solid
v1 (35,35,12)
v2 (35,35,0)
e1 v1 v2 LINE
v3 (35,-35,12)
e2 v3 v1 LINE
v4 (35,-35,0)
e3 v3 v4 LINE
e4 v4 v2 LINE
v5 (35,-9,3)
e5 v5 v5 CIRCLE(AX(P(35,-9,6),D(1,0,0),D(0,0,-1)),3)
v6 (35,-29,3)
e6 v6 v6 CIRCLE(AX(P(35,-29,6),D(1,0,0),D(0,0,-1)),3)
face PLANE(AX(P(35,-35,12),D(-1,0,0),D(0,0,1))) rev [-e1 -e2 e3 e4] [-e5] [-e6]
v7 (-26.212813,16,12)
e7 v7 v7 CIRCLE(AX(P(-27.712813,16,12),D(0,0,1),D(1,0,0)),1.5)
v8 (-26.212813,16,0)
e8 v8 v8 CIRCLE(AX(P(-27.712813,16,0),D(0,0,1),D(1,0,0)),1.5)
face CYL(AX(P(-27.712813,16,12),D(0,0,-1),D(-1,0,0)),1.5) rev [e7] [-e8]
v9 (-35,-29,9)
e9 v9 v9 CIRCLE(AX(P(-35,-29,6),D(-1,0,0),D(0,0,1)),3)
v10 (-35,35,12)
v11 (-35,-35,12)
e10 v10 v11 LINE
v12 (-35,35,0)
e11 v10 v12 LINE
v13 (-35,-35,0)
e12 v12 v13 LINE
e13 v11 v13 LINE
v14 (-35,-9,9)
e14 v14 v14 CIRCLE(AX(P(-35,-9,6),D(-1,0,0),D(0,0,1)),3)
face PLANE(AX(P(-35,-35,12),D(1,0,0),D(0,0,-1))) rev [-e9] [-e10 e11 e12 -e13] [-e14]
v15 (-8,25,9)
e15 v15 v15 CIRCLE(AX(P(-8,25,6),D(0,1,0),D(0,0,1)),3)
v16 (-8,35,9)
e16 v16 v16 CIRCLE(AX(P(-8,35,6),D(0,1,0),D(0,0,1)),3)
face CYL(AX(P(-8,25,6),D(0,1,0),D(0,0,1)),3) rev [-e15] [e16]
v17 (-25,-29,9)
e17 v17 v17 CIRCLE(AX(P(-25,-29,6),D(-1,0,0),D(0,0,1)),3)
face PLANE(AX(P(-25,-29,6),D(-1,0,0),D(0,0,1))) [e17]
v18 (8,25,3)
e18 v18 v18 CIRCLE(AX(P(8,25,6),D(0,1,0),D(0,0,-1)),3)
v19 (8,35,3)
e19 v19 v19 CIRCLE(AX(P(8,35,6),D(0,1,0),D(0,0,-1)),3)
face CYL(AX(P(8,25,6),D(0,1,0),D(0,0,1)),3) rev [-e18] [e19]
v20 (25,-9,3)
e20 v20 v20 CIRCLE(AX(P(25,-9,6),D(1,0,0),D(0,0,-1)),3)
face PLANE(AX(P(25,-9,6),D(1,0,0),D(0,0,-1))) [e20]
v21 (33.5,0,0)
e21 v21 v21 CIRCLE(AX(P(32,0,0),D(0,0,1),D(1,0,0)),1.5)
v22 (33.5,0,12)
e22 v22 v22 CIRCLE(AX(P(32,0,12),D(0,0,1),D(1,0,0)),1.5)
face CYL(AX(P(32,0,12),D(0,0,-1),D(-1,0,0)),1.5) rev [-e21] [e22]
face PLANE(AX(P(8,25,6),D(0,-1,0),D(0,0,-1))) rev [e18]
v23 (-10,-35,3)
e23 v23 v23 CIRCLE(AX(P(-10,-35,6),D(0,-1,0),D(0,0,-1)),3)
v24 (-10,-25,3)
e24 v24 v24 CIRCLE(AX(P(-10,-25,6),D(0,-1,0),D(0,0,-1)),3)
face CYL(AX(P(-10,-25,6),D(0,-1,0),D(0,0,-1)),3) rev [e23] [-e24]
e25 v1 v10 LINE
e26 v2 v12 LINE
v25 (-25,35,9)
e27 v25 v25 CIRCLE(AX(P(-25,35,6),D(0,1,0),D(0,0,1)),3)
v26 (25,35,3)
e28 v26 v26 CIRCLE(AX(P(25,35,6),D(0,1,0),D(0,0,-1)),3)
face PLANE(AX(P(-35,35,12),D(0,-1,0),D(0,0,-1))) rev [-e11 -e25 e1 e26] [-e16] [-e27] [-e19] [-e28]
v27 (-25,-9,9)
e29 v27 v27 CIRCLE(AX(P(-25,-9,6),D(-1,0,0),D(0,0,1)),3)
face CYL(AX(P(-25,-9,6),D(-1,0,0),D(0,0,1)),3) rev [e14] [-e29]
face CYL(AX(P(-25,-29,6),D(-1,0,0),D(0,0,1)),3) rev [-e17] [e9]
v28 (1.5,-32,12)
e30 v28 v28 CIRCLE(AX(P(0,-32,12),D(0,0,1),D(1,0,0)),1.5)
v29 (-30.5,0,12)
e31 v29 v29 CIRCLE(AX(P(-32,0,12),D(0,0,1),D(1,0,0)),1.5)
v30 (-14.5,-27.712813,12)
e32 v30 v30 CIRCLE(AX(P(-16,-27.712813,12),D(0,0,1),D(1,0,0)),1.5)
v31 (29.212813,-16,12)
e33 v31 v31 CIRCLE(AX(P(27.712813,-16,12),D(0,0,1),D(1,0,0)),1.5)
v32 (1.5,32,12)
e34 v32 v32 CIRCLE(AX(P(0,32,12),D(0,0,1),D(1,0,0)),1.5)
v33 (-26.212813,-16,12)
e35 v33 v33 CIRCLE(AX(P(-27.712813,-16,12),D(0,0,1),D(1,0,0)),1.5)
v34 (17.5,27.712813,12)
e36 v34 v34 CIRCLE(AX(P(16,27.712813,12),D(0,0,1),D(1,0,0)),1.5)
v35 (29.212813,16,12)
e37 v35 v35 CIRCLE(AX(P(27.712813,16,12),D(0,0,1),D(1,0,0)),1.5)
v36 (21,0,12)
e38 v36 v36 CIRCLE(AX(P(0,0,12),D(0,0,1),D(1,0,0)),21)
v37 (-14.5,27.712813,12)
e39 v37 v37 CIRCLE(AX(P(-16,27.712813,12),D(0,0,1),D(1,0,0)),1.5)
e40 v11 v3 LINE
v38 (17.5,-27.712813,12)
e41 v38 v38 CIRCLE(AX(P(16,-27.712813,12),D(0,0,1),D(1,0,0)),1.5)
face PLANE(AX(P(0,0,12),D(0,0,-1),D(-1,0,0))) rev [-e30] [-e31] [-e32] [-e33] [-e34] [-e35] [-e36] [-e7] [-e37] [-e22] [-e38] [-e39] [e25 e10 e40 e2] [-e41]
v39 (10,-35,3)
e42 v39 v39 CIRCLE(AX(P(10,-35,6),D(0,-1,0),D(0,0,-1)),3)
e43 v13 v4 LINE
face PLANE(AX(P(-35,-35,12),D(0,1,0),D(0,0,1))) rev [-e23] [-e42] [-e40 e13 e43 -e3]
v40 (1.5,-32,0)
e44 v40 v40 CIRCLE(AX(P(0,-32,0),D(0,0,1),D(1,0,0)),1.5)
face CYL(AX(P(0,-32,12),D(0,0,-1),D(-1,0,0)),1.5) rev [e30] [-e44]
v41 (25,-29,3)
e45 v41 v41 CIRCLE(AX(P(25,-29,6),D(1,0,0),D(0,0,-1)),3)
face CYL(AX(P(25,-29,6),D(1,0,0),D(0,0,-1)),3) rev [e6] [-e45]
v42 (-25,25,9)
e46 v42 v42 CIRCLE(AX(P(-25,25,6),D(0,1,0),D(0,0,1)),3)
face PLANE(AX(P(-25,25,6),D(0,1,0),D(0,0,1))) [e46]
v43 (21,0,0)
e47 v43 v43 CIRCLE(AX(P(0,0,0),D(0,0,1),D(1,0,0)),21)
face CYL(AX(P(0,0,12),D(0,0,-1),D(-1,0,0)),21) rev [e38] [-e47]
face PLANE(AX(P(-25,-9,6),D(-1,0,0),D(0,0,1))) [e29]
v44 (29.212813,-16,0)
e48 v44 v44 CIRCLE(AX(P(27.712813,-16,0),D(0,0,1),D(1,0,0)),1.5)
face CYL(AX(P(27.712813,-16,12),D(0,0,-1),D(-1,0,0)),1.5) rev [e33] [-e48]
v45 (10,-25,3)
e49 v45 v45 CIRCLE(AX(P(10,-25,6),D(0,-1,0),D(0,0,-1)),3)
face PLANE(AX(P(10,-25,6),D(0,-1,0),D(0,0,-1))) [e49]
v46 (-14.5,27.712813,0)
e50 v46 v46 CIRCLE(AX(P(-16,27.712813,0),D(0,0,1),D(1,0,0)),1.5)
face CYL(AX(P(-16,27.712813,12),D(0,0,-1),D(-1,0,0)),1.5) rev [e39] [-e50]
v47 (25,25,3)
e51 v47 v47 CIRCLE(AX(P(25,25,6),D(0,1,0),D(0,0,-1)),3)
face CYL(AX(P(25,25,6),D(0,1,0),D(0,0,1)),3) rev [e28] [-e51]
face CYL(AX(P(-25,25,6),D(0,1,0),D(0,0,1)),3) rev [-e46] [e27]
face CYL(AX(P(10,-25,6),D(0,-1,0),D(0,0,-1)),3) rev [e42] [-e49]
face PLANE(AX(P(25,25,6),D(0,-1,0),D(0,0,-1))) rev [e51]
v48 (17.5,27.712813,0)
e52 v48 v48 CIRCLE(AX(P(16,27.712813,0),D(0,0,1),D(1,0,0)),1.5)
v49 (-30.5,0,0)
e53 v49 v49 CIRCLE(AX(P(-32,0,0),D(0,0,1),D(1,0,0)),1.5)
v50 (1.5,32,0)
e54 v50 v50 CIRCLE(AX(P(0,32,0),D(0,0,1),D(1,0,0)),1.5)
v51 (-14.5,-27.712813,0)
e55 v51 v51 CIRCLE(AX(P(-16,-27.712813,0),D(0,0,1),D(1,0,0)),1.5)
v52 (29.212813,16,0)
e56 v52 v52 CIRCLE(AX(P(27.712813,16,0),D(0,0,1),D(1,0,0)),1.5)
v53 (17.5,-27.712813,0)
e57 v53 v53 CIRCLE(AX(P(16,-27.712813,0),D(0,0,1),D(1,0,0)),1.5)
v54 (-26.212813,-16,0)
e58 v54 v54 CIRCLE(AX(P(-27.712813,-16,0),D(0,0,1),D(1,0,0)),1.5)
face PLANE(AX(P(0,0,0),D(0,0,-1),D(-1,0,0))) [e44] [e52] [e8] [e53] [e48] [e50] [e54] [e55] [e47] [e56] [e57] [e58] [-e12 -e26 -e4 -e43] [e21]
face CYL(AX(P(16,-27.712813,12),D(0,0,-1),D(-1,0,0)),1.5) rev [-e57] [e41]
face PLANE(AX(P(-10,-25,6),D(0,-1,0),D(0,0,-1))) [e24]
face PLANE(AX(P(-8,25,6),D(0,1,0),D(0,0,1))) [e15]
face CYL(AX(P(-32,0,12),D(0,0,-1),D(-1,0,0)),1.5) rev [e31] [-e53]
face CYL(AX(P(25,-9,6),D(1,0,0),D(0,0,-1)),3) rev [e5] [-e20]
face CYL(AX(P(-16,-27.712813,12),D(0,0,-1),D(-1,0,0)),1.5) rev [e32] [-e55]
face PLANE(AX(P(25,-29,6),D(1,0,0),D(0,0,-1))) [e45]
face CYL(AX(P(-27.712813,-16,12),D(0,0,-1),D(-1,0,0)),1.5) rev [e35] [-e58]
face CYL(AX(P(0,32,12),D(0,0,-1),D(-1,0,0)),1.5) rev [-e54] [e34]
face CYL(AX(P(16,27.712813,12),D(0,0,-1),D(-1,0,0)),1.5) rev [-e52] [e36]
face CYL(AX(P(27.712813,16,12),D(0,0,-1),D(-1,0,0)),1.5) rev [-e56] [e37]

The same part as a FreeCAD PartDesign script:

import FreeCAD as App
import Part
import Sketcher

V = App.Vector
Q = App.Units.Quantity


def add_polygon(sketch, points):
    """Adds a closed chain of lines whose ends are joined by coincident constraints."""
    first, n = sketch.GeometryCount, len(points)
    for a, b in zip(points, points[1:] + points[:1]):
        sketch.addGeometry(Part.LineSegment(App.Vector(*a, 0), App.Vector(*b, 0)), False)
    for i in range(n):
        sketch.addConstraint(Sketcher.Constraint("Coincident", first + i, 2, first + (i + 1) % n, 1))

doc = App.newDocument("Part")
body = doc.addObject("PartDesign::Body", "Body")

sketch1 = doc.addObject("Sketcher::SketchObject", "Sketch")
body.addObject(sketch1)
sketch1.AttachmentSupport = (doc.XY_Plane, [""])
sketch1.MapMode = "FlatFace"
add_polygon(sketch1, [(-35, 35), (-35, -35), (35, -35), (35, 35)])
sketch1.addGeometry(Part.Circle(V(-16, -27.712813, 0), V(0, 0, 1), 1.5), False)
sketch1.addGeometry(Part.Circle(V(-27.712813, -16, 0), V(0, 0, 1), 1.5), False)
sketch1.addGeometry(Part.Circle(V(0, -32, 0), V(0, 0, 1), 1.5), False)
sketch1.addGeometry(Part.Circle(V(16, -27.712813, 0), V(0, 0, 1), 1.5), False)
sketch1.addGeometry(Part.Circle(V(27.712813, -16, 0), V(0, 0, 1), 1.5), False)
sketch1.addGeometry(Part.Circle(V(-32, 0, 0), V(0, 0, 1), 1.5), False)
sketch1.addGeometry(Part.Circle(V(-27.712813, 16, 0), V(0, 0, 1), 1.5), False)
sketch1.addGeometry(Part.Circle(V(-16, 27.712813, 0), V(0, 0, 1), 1.5), False)
sketch1.addGeometry(Part.Circle(V(0, 0, 0), V(0, 0, 1), 21), False)
sketch1.addGeometry(Part.Circle(V(32, 0, 0), V(0, 0, 1), 1.5), False)
sketch1.addGeometry(Part.Circle(V(27.712813, 16, 0), V(0, 0, 1), 1.5), False)
sketch1.addGeometry(Part.Circle(V(0, 32, 0), V(0, 0, 1), 1.5), False)
sketch1.addGeometry(Part.Circle(V(16, 27.712813, 0), V(0, 0, 1), 1.5), False)
sketch1.addConstraint(Sketcher.Constraint("Vertical", 0))
sketch1.addConstraint(Sketcher.Constraint("Horizontal", 1))
sketch1.addConstraint(Sketcher.Constraint("Vertical", 2))
sketch1.addConstraint(Sketcher.Constraint("Horizontal", 3))
sketch1.addConstraint(Sketcher.Constraint("Coincident", 12, 3, -1, 1))
sketch1.addConstraint(Sketcher.Constraint("Equal", 4, 5))
sketch1.addConstraint(Sketcher.Constraint("Equal", 5, 6))
sketch1.addConstraint(Sketcher.Constraint("Equal", 6, 7))
sketch1.addConstraint(Sketcher.Constraint("Equal", 7, 8))
sketch1.addConstraint(Sketcher.Constraint("Equal", 8, 9))
sketch1.addConstraint(Sketcher.Constraint("Equal", 9, 10))
sketch1.addConstraint(Sketcher.Constraint("Equal", 10, 11))
sketch1.addConstraint(Sketcher.Constraint("Equal", 11, 13))
sketch1.addConstraint(Sketcher.Constraint("Equal", 13, 14))
sketch1.addConstraint(Sketcher.Constraint("Equal", 14, 15))
sketch1.addConstraint(Sketcher.Constraint("Equal", 15, 16))
sketch1.addConstraint(Sketcher.Constraint("Symmetric", 8, 3, 10, 3, -1, 1))
sketch1.addConstraint(Sketcher.Constraint("Symmetric", 7, 3, 11, 3, -1, 1))
sketch1.addConstraint(Sketcher.Constraint("Symmetric", 9, 3, 13, 3, -1, 1))
sketch1.addConstraint(Sketcher.Constraint("Symmetric", 5, 3, 14, 3, -1, 1))
sketch1.addConstraint(Sketcher.Constraint("Symmetric", 6, 3, 15, 3, -1, 1))
sketch1.addConstraint(Sketcher.Constraint("Symmetric", 4, 3, 16, 3, -1, 1))
sketch1.addConstraint(Sketcher.Constraint("Symmetric", 0, 2, 2, 2, -1, 1))
sketch1.addConstraint(Sketcher.Constraint("Symmetric", 4, 3, 7, 3, -2))
sketch1.addConstraint(Sketcher.Constraint("Symmetric", 5, 3, 8, 3, -2))
sketch1.addConstraint(Sketcher.Constraint("PointOnObject", 6, 3, -2))
sketch1.addConstraint(Sketcher.Constraint("PointOnObject", 9, 3, -1))
sketch1.addConstraint(Sketcher.Constraint("Equal", 3, 0))
sketch1.addConstraint(Sketcher.Constraint("Diameter", 4, Q("3 mm")))
sketch1.addConstraint(Sketcher.Constraint("Diameter", 12, Q("42 mm")))
sketch1.addConstraint(Sketcher.Constraint("DistanceX", 1, 1, 1, 2, Q("70 mm")))
sketch1.addConstraint(Sketcher.Constraint("DistanceX", 4, 3, -1, 1, Q("16 mm")))
sketch1.addConstraint(Sketcher.Constraint("DistanceY", 5, 3, -1, 1, Q("16 mm")))
sketch1.addConstraint(Sketcher.Constraint("DistanceY", 6, 3, -1, 1, Q("32 mm")))
sketch1.addConstraint(Sketcher.Constraint("DistanceX", 9, 3, -1, 1, Q("32 mm")))
sketch1.addConstraint(Sketcher.Constraint("DistanceY", 4, 3, -1, 1, Q("27.712813 mm")))
sketch1.addConstraint(Sketcher.Constraint("DistanceX", 5, 3, -1, 1, Q("27.712813 mm")))
pad1 = doc.addObject("PartDesign::Pad", "Pad")
body.addObject(pad1)
pad1.Profile = sketch1
pad1.Length = 12

sketch2 = doc.addObject("Sketcher::SketchObject", "Sketch001")
body.addObject(sketch2)
sketch2.AttachmentSupport = (doc.XZ_Plane, [""])
sketch2.MapMode = "FlatFace"
sketch2.AttachmentOffset = App.Placement(V(0, 0, -35), App.Rotation())
sketch2.addGeometry(Part.Circle(V(-25, 6, 0), V(0, 0, 1), 3), False)
sketch2.addGeometry(Part.Circle(V(-8, 6, 0), V(0, 0, 1), 3), False)
sketch2.addGeometry(Part.Circle(V(25, 6, 0), V(0, 0, 1), 3), False)
sketch2.addGeometry(Part.Circle(V(8, 6, 0), V(0, 0, 1), 3), False)
sketch2.addConstraint(Sketcher.Constraint("Equal", 0, 1))
sketch2.addConstraint(Sketcher.Constraint("Equal", 1, 2))
sketch2.addConstraint(Sketcher.Constraint("Equal", 2, 3))
sketch2.addConstraint(Sketcher.Constraint("Symmetric", 0, 3, 2, 3, -2))
sketch2.addConstraint(Sketcher.Constraint("Symmetric", 1, 3, 3, 3, -2))
sketch2.addConstraint(Sketcher.Constraint("Horizontal", 0, 3, 1, 3))
sketch2.addConstraint(Sketcher.Constraint("Diameter", 0, Q("6 mm")))
sketch2.addConstraint(Sketcher.Constraint("DistanceX", 0, 3, -1, 1, Q("25 mm")))
sketch2.addConstraint(Sketcher.Constraint("DistanceY", -1, 1, 0, 3, Q("6 mm")))
sketch2.addConstraint(Sketcher.Constraint("DistanceX", 1, 3, -1, 1, Q("8 mm")))
pocket1 = doc.addObject("PartDesign::Pocket", "Pocket")
body.addObject(pocket1)
pocket1.Profile = sketch2
pocket1.Length = 10
pocket1.Reversed = True

sketch3 = doc.addObject("Sketcher::SketchObject", "Sketch002")
body.addObject(sketch3)
sketch3.AttachmentSupport = (doc.YZ_Plane, [""])
sketch3.MapMode = "FlatFace"
sketch3.AttachmentOffset = App.Placement(V(0, 0, 35), App.Rotation())
sketch3.addGeometry(Part.Circle(V(-9, 6, 0), V(0, 0, 1), 3), False)
sketch3.addGeometry(Part.Circle(V(-29, 6, 0), V(0, 0, 1), 3), False)
sketch3.addConstraint(Sketcher.Constraint("Equal", 0, 1))
sketch3.addConstraint(Sketcher.Constraint("Horizontal", 0, 3, 1, 3))
sketch3.addConstraint(Sketcher.Constraint("Diameter", 0, Q("6 mm")))
sketch3.addConstraint(Sketcher.Constraint("DistanceX", 0, 3, -1, 1, Q("9 mm")))
sketch3.addConstraint(Sketcher.Constraint("DistanceY", -1, 1, 0, 3, Q("6 mm")))
sketch3.addConstraint(Sketcher.Constraint("DistanceX", 1, 3, -1, 1, Q("29 mm")))
pocket2 = doc.addObject("PartDesign::Pocket", "Pocket001")
body.addObject(pocket2)
pocket2.Profile = sketch3
pocket2.Length = 10

sketch4 = doc.addObject("Sketcher::SketchObject", "Sketch003")
body.addObject(sketch4)
sketch4.AttachmentSupport = (doc.YZ_Plane, [""])
sketch4.MapMode = "FlatFace"
sketch4.AttachmentOffset = App.Placement(V(0, 0, -25), App.Rotation())
sketch4.addGeometry(Part.Circle(V(-29, 6, 0), V(0, 0, 1), 3), False)
sketch4.addGeometry(Part.Circle(V(-9, 6, 0), V(0, 0, 1), 3), False)
sketch4.addConstraint(Sketcher.Constraint("Equal", 0, 1))
sketch4.addConstraint(Sketcher.Constraint("Horizontal", 0, 3, 1, 3))
sketch4.addConstraint(Sketcher.Constraint("Diameter", 0, Q("6 mm")))
sketch4.addConstraint(Sketcher.Constraint("DistanceX", 0, 3, -1, 1, Q("29 mm")))
sketch4.addConstraint(Sketcher.Constraint("DistanceY", -1, 1, 0, 3, Q("6 mm")))
sketch4.addConstraint(Sketcher.Constraint("DistanceX", 1, 3, -1, 1, Q("9 mm")))
pocket3 = doc.addObject("PartDesign::Pocket", "Pocket002")
body.addObject(pocket3)
pocket3.Profile = sketch4
pocket3.Length = 10

sketch5 = doc.addObject("Sketcher::SketchObject", "Sketch004")
body.addObject(sketch5)
sketch5.AttachmentSupport = (doc.XZ_Plane, [""])
sketch5.MapMode = "FlatFace"
sketch5.AttachmentOffset = App.Placement(V(0, 0, 35), App.Rotation())
sketch5.addGeometry(Part.Circle(V(10, 6, 0), V(0, 0, 1), 3), False)
sketch5.addGeometry(Part.Circle(V(-10, 6, 0), V(0, 0, 1), 3), False)
sketch5.addConstraint(Sketcher.Constraint("Equal", 0, 1))
sketch5.addConstraint(Sketcher.Constraint("Symmetric", 0, 3, 1, 3, -2))
sketch5.addConstraint(Sketcher.Constraint("Diameter", 0, Q("6 mm")))
sketch5.addConstraint(Sketcher.Constraint("DistanceX", -1, 1, 0, 3, Q("10 mm")))
sketch5.addConstraint(Sketcher.Constraint("DistanceY", -1, 1, 0, 3, Q("6 mm")))
pocket4 = doc.addObject("PartDesign::Pocket", "Pocket003")
body.addObject(pocket4)
pocket4.Profile = sketch5
pocket4.Length = 10

doc.recompute()
